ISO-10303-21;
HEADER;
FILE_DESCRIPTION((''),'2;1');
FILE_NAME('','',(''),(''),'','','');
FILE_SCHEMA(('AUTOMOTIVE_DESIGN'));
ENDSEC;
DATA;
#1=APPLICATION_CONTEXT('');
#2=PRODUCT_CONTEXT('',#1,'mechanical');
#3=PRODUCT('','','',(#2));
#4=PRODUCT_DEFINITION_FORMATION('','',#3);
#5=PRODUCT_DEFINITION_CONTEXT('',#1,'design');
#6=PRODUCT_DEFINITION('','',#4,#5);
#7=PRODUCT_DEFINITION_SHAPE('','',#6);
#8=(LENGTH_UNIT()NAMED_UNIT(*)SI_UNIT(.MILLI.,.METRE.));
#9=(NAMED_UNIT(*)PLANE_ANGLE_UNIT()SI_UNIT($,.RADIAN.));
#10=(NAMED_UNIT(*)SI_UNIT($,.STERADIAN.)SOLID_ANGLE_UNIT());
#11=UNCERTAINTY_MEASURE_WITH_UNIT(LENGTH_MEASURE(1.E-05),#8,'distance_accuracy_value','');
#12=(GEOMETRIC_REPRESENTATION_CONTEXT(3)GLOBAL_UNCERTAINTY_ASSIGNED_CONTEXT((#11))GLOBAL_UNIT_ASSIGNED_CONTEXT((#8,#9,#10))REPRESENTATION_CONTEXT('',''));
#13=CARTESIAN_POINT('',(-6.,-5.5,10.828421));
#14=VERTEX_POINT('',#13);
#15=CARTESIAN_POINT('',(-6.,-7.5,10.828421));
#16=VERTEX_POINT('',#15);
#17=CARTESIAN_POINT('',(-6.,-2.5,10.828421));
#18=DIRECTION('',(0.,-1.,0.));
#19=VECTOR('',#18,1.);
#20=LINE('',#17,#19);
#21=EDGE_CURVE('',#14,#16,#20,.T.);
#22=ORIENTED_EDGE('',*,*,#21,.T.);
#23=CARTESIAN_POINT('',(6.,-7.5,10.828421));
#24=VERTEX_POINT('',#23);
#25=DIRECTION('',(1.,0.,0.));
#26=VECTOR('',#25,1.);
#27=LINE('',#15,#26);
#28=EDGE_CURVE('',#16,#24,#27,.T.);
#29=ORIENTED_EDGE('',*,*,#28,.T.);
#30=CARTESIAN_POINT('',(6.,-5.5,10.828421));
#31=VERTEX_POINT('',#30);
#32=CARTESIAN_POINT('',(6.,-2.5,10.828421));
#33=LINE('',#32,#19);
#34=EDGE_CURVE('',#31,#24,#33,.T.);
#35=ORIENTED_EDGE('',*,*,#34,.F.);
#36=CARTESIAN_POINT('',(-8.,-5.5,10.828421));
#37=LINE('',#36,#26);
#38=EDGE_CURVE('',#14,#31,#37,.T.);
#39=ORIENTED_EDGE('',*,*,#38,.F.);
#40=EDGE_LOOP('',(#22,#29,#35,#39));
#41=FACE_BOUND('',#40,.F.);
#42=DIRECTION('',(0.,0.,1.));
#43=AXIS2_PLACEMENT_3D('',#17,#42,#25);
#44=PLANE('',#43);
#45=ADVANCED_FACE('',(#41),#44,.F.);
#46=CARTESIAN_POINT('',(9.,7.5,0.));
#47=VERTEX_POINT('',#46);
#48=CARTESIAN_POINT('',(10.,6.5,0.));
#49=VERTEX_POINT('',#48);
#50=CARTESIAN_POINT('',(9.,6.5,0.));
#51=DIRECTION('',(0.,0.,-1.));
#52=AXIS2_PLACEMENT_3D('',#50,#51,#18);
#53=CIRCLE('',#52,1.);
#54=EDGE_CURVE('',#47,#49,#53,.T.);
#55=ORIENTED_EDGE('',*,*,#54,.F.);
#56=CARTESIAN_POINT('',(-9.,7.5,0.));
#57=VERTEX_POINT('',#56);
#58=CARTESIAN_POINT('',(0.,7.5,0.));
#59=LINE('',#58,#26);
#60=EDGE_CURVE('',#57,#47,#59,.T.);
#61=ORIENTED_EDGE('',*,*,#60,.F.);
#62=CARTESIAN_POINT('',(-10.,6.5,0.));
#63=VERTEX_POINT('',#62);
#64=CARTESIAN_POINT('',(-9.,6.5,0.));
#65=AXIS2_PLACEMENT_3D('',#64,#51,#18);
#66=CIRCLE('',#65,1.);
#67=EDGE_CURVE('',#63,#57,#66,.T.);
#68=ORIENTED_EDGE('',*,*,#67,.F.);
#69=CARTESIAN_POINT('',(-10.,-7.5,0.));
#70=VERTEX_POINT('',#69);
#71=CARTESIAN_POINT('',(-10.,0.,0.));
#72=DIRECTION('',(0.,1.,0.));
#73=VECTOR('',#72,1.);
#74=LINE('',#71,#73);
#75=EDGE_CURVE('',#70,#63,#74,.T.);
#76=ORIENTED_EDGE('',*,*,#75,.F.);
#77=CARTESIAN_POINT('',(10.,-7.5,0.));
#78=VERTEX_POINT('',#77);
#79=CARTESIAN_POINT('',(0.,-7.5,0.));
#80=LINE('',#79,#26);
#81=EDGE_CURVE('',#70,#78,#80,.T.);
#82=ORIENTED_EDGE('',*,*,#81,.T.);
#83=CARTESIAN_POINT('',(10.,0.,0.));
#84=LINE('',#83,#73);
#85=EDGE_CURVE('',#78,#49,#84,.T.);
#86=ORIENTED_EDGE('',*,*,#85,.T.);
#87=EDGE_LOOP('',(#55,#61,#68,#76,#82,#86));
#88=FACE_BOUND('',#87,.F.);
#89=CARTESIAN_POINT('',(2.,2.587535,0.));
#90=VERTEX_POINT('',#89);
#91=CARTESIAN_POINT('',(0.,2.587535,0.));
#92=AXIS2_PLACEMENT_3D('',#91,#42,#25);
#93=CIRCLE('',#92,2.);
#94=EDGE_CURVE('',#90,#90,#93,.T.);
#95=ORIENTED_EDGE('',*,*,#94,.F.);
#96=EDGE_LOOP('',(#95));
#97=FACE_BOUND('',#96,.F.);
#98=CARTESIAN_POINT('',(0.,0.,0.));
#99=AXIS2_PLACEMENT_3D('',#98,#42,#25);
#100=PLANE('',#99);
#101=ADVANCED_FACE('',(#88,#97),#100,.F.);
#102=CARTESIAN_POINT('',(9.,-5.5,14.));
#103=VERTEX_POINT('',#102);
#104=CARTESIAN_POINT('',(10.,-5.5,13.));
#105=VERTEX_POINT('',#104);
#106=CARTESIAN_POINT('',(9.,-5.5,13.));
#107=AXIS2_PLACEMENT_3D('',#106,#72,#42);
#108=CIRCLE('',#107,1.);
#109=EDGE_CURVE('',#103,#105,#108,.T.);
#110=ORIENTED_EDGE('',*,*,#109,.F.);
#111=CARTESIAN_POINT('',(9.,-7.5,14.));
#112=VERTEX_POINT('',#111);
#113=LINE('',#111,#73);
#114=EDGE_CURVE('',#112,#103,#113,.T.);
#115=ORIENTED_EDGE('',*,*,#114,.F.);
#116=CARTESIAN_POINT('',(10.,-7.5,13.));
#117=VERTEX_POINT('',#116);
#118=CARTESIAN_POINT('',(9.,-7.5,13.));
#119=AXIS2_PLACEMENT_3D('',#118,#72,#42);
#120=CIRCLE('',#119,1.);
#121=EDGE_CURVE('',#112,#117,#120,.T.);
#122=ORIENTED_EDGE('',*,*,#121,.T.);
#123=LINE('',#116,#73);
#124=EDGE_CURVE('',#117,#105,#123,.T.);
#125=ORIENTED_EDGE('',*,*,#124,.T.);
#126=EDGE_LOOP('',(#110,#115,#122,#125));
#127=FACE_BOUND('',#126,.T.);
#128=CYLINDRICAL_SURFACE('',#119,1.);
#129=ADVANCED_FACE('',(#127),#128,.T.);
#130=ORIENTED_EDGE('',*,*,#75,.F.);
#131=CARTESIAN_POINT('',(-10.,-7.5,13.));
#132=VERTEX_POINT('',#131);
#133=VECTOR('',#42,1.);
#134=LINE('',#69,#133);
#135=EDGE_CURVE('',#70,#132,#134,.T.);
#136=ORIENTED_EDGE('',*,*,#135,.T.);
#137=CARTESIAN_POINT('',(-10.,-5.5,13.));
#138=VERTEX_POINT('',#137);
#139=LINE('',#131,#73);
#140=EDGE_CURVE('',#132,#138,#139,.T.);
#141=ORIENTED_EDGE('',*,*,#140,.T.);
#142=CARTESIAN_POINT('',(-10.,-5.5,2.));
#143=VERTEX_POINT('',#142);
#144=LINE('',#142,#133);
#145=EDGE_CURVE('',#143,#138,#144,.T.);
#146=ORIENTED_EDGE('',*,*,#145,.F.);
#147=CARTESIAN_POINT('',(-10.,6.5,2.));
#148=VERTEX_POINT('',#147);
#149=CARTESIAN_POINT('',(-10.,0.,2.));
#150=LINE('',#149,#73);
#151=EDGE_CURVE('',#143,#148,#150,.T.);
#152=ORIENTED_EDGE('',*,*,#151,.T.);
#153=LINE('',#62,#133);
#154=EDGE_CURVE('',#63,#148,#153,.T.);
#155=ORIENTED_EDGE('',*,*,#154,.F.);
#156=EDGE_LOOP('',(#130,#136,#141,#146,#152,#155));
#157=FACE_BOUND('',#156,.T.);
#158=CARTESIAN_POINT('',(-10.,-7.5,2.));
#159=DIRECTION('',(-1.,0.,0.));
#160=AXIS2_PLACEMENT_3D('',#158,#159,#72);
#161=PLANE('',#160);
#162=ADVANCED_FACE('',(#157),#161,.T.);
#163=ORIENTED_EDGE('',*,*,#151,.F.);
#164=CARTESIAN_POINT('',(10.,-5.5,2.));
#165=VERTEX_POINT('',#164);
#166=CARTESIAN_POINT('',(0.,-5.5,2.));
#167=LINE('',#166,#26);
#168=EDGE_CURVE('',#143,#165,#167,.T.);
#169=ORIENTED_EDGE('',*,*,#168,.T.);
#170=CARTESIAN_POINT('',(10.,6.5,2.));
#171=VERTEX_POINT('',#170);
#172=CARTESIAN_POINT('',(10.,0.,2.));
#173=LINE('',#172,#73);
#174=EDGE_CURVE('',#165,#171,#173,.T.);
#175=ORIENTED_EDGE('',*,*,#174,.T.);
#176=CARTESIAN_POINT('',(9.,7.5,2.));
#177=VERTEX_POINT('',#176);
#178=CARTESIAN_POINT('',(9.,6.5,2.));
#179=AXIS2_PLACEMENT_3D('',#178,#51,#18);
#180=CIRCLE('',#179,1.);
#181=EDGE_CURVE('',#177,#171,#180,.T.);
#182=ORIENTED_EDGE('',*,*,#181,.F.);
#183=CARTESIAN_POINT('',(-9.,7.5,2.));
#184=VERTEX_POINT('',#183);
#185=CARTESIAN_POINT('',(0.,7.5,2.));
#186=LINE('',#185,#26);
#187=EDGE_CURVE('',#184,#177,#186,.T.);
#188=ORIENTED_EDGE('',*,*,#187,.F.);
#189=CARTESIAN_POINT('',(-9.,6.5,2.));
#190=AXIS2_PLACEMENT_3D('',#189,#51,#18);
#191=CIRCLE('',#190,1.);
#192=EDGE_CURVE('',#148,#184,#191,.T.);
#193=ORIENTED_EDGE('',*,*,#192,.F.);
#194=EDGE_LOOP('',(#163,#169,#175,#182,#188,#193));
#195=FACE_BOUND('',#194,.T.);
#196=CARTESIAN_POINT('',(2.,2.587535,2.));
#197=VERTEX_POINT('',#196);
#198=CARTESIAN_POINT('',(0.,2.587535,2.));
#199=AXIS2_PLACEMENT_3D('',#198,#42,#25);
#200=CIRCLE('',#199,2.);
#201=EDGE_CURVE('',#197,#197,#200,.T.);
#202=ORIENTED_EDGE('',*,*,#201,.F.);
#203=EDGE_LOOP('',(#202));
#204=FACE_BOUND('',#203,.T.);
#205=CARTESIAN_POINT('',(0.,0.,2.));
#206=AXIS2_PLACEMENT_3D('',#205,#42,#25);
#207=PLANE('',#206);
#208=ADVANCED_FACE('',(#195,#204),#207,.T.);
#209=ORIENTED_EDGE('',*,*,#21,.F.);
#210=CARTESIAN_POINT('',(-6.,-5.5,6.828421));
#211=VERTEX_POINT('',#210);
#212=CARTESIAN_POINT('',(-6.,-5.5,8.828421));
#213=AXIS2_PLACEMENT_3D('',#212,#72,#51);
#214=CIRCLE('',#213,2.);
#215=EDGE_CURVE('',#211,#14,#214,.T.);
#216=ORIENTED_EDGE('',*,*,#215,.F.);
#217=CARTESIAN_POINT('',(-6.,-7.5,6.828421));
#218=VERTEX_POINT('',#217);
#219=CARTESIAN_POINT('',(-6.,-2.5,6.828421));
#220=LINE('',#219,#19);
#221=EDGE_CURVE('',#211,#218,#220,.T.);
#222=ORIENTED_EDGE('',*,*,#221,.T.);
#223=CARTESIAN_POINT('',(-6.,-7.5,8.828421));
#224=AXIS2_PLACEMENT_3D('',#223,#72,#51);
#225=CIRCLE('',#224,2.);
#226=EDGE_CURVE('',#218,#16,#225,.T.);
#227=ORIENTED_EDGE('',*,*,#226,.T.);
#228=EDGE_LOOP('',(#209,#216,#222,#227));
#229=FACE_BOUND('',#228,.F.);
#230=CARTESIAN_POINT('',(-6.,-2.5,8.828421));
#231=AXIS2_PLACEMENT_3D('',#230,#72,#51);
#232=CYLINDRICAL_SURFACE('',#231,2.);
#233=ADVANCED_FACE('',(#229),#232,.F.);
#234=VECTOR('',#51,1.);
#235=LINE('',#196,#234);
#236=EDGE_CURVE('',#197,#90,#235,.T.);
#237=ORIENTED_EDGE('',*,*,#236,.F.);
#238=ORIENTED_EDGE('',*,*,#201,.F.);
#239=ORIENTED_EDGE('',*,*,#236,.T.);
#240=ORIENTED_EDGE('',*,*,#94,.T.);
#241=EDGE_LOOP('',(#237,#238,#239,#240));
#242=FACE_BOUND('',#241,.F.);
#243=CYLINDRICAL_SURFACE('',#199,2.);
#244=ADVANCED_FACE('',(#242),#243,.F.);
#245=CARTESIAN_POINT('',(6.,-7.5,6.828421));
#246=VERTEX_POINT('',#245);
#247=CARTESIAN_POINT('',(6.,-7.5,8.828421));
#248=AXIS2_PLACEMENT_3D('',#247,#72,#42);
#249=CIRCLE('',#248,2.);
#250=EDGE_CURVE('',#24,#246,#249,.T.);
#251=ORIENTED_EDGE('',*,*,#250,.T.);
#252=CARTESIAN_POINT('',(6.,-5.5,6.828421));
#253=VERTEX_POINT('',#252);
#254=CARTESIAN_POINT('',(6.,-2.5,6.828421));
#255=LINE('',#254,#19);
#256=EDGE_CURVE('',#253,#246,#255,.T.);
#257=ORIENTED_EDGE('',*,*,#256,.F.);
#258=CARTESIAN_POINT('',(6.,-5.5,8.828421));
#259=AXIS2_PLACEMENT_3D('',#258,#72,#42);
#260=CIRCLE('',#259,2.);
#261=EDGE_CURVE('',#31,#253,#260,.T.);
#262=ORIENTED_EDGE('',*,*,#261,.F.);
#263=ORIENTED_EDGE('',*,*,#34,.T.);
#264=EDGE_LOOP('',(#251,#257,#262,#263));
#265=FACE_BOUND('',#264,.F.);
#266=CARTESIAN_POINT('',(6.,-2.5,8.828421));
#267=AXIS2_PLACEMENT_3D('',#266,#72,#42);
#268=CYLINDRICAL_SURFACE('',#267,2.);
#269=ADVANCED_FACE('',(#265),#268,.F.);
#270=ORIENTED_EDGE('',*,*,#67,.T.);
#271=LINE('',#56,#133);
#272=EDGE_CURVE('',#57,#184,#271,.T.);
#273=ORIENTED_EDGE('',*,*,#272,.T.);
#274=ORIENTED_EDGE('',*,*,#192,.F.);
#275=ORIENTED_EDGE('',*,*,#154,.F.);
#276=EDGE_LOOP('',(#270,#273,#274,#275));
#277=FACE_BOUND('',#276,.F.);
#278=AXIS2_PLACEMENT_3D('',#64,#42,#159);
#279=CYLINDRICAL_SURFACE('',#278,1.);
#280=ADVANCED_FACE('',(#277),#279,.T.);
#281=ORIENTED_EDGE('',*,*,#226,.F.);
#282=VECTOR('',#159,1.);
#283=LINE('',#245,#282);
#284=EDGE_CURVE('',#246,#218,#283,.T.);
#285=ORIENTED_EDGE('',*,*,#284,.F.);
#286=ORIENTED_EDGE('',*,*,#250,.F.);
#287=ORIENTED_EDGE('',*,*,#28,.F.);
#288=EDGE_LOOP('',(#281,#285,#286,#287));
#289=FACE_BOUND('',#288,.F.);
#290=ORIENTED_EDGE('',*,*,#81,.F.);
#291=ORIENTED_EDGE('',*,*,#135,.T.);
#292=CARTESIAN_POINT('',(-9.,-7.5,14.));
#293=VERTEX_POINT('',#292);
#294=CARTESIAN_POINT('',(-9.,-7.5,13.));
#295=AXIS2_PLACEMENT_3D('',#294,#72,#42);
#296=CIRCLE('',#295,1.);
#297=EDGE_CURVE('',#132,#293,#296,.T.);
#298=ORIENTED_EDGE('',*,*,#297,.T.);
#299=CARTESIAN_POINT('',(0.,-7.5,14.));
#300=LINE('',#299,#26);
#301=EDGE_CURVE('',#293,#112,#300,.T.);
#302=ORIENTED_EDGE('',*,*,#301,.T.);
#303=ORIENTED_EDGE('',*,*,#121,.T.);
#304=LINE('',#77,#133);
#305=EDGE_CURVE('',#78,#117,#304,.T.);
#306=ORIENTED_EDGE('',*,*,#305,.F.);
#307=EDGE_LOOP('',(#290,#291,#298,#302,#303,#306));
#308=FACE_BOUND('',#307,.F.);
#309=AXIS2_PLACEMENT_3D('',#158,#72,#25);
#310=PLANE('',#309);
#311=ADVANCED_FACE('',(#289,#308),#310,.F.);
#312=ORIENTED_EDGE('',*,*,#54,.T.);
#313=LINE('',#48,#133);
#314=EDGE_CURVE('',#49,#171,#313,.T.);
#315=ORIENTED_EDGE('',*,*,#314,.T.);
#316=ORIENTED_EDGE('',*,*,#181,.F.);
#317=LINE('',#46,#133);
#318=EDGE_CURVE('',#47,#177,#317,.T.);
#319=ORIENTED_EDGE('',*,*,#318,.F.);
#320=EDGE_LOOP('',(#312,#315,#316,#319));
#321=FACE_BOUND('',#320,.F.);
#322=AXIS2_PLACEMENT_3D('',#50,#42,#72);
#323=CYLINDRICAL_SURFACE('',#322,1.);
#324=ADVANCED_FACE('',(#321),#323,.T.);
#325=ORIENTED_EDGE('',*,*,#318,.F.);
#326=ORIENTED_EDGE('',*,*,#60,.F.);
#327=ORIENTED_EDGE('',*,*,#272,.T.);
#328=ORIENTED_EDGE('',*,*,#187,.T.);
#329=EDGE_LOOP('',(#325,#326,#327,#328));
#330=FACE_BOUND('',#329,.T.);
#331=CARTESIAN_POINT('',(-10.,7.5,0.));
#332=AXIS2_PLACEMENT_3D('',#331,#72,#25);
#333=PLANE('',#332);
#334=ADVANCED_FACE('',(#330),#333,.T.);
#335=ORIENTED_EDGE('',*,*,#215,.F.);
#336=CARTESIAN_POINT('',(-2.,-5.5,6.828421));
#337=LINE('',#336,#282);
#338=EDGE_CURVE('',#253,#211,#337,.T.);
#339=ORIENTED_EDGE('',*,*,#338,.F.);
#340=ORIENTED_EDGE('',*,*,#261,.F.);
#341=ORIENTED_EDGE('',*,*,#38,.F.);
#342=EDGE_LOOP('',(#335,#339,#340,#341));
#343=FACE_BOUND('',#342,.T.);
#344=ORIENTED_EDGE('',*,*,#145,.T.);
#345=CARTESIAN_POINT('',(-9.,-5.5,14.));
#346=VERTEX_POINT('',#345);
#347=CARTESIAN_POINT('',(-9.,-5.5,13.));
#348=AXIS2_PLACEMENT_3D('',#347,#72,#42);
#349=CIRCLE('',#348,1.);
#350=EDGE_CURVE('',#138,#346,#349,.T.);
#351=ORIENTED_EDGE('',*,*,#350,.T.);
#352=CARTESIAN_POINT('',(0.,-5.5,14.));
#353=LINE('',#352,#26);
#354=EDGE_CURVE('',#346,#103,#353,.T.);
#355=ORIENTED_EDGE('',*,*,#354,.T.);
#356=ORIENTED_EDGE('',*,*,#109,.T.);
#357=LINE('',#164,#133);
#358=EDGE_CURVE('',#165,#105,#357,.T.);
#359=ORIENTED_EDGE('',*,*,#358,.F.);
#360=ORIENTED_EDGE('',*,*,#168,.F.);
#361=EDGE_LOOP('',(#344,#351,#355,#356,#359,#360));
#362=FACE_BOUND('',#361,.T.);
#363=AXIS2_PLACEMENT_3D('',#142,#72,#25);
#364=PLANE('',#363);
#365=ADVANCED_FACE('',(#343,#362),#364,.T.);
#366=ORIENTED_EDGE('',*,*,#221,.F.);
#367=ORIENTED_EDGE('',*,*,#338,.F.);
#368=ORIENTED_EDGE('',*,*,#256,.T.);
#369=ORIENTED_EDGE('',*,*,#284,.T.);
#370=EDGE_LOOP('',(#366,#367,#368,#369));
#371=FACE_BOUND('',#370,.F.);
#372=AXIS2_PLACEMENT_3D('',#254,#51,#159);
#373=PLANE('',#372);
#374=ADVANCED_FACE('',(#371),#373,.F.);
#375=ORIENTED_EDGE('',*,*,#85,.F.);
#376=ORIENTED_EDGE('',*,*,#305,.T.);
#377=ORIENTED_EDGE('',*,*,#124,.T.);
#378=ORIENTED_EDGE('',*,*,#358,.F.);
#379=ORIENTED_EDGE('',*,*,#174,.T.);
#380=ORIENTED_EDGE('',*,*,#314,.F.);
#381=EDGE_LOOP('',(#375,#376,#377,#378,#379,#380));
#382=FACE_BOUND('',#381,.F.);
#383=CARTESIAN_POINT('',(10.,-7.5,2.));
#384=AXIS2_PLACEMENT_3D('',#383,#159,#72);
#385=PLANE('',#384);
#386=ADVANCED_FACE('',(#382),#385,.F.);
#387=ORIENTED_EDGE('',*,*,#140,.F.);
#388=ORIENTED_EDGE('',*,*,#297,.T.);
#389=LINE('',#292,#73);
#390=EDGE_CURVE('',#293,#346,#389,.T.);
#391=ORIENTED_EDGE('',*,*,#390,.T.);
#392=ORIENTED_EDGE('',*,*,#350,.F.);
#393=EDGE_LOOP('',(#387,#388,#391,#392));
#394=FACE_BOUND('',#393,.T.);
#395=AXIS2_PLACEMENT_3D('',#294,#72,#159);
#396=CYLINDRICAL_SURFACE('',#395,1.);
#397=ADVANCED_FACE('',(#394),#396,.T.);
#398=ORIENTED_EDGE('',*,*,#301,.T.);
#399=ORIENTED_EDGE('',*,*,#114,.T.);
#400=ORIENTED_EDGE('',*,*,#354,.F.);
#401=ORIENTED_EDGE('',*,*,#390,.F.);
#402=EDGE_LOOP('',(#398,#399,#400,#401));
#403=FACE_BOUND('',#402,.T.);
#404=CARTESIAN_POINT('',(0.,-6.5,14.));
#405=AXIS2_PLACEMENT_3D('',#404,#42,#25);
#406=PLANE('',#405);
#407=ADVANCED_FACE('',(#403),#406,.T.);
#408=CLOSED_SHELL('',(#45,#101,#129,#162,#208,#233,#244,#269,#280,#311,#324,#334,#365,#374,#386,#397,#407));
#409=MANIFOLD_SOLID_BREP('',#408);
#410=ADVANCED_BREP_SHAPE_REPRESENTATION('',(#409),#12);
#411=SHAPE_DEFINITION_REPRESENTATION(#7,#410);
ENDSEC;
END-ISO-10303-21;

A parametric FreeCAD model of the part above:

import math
import FreeCAD as App
import Part
import Sketcher
from FreeCAD import Vector
Q = App.Units.Quantity


def edges_at(feature, points):
    """Names of the edges that pass closest to the given points."""
    edges = feature.Shape.Edges
    near = lambda p: min(range(len(edges)), key=lambda i: edges[i].distToShape(Part.Vertex(*p))[0])
    return sorted({f"Edge{near(p) + 1}" for p in points})


def add_polygon(sketch, points):
    """Adds a closed chain of lines whose ends are joined by coincident constraints."""
    first, n = sketch.GeometryCount, len(points)
    for a, b in zip(points, points[1:] + points[:1]):
        sketch.addGeometry(Part.LineSegment(App.Vector(*a, 0), App.Vector(*b, 0)), False)
    for i in range(n):
        sketch.addConstraint(Sketcher.Constraint("Coincident", first + i, 2, first + (i + 1) % n, 1))

doc = App.newDocument("Part")
body = doc.addObject("PartDesign::Body", "Body")

sketch1 = body.newObject("Sketcher::SketchObject", "Sketch")
sketch1.AttachmentSupport = (doc.getObject("XY_Plane"), [""])
sketch1.MapMode = "FlatFace"
add_polygon(sketch1, [(-10, 7.5), (-10, -7.5), (10, -7.5), (10, 7.5)])
sketch1.addConstraint(Sketcher.Constraint("Vertical", 0))
sketch1.addConstraint(Sketcher.Constraint("Horizontal", 1))
sketch1.addConstraint(Sketcher.Constraint("Vertical", 2))
sketch1.addConstraint(Sketcher.Constraint("Horizontal", 3))
sketch1.addConstraint(Sketcher.Constraint("Symmetric", 0, 2, 2, 2, -1, 1))
sketch1.addConstraint(Sketcher.Constraint("DistanceX", 1, 1, 1, 2, Q("20 mm")))
sketch1.addConstraint(Sketcher.Constraint("DistanceY", 0, 2, 0, 1, Q("15 mm")))
pad1 = body.newObject("PartDesign::Pad", "Pad")
pad1.Profile = sketch1
pad1.Length = 2

sketch2 = body.newObject("Sketcher::SketchObject", "Sketch001")
sketch2.AttachmentSupport = (doc.getObject("XY_Plane"), [""])
sketch2.MapMode = "FlatFace"
sketch2.AttachmentOffset = App.Placement(Vector(0, 0, 2), App.Rotation())
add_polygon(sketch2, [(-10, -5.5), (-10, -7.5), (10, -7.5), (10, -5.5)])
sketch2.addConstraint(Sketcher.Constraint("Vertical", 0))
sketch2.addConstraint(Sketcher.Constraint("Horizontal", 1))
sketch2.addConstraint(Sketcher.Constraint("Vertical", 2))
sketch2.addConstraint(Sketcher.Constraint("Horizontal", 3))
sketch2.addConstraint(Sketcher.Constraint("DistanceX", 1, 1, 1, 2, Q("20 mm")))
sketch2.addConstraint(Sketcher.Constraint("DistanceY", 0, 2, 0, 1, Q("2 mm")))
sketch2.addConstraint(Sketcher.Constraint("DistanceX", 0, 2, -1, 1, Q("10 mm")))
sketch2.addConstraint(Sketcher.Constraint("DistanceY", 0, 2, -1, 1, Q("7.5 mm")))
pad2 = body.newObject("PartDesign::Pad", "Pad001")
pad2.Profile = sketch2
pad2.Length = 12

sketch3 = body.newObject("Sketcher::SketchObject", "Sketch002")
sketch3.AttachmentSupport = (doc.getObject("XZ_Plane"), [""])
sketch3.MapMode = "FlatFace"
sketch3.AttachmentOffset = App.Placement(Vector(0, 0, 2.5), App.Rotation())
sketch3.addGeometry(Part.LineSegment(Vector(6, 6.828421, 0), Vector(-6, 6.828421, 0)), False)
sketch3.addGeometry(Part.ArcOfCircle(Part.Circle(Vector(-6, 8.828421, 0), Vector(0, 0, 1), 2), math.radians(90), math.radians(270)), False)
sketch3.addGeometry(Part.LineSegment(Vector(-6, 10.828421, 0), Vector(6, 10.828421, 0)), False)
sketch3.addGeometry(Part.ArcOfCircle(Part.Circle(Vector(6, 8.828421, 0), Vector(0, 0, 1), 2), math.radians(-90), math.radians(90)), False)
sketch3.addConstraint(Sketcher.Constraint("Tangent", 0, 2, 1, 2))
sketch3.addConstraint(Sketcher.Constraint("Tangent", 1, 1, 2, 1))
sketch3.addConstraint(Sketcher.Constraint("Tangent", 2, 2, 3, 2))
sketch3.addConstraint(Sketcher.Constraint("Tangent", 3, 1, 0, 1))
sketch3.addConstraint(Sketcher.Constraint("Horizontal", 0))
sketch3.addConstraint(Sketcher.Constraint("Horizontal", 2))
sketch3.addConstraint(Sketcher.Constraint("Radius", 1, Q("2 mm")))
sketch3.addConstraint(Sketcher.Constraint("DistanceX", 0, 2, 0, 1, Q("12 mm")))
sketch3.addConstraint(Sketcher.Constraint("DistanceX", 1, 3, -1, 1, Q("6 mm")))
sketch3.addConstraint(Sketcher.Constraint("DistanceY", -1, 1, 1, 3, Q("8.828421 mm")))
pocket1 = body.newObject("PartDesign::Pocket", "Pocket")
pocket1.Profile = sketch3
pocket1.Length = 5
pocket1.Reversed = True

sketch4 = body.newObject("Sketcher::SketchObject", "Sketch003")
sketch4.AttachmentSupport = (doc.getObject("XY_Plane"), [""])
sketch4.MapMode = "FlatFace"
sketch4.AttachmentOffset = App.Placement(Vector(0, 0, 2), App.Rotation())
sketch4.addGeometry(Part.Circle(Vector(0, 2.587535, 0), Vector(0, 0, 1), 2), False)
sketch4.addConstraint(Sketcher.Constraint("PointOnObject", 0, 3, -2))
sketch4.addConstraint(Sketcher.Constraint("Diameter", 0, Q("4 mm")))
sketch4.addConstraint(Sketcher.Constraint("DistanceY", -1, 1, 0, 3, Q("2.587535 mm")))
pocket2 = body.newObject("PartDesign::Pocket", "Pocket001")
pocket2.Profile = sketch4
pocket2.Length = 5
doc.recompute()

fillet = body.newObject("PartDesign::Fillet", "Fillet")
fillet.Base = (pocket2, edges_at(pocket2, [(-10, 7.5, 1)]))
fillet.Radius = 1
doc.recompute()

fillet2 = body.newObject("PartDesign::Fillet", "Fillet001")
fillet2.Base = (fillet, edges_at(fillet, [(10, 7.5, 1)]))
fillet2.Radius = 1
doc.recompute()

fillet3 = body.newObject("PartDesign::Fillet", "Fillet002")
fillet3.Base = (fillet2, edges_at(fillet2, [(-10, -6.5, 14)]))
fillet3.Radius = 1
doc.recompute()

fillet4 = body.newObject("PartDesign::Fillet", "Fillet003")
fillet4.Base = (fillet3, edges_at(fillet3, [(10, -6.5, 14)]))
fillet4.Radius = 1

doc.recompute()
